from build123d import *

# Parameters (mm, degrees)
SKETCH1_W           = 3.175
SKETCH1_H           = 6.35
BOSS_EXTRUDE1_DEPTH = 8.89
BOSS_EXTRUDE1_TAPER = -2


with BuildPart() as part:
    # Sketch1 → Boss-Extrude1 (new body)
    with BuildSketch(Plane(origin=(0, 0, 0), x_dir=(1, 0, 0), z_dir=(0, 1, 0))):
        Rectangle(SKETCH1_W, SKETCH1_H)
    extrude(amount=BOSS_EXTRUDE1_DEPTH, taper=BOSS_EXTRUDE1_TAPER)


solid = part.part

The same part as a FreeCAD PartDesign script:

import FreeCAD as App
import Part
import Sketcher
from FreeCAD import Vector
Q = App.Units.Quantity

doc = App.newDocument("Part")
body = doc.addObject("PartDesign::Body", "Body")

# Sketch on XZ plane
sketch1 = doc.addObject("Sketcher::SketchObject", "Sketch")
body.addObject(sketch1)
sketch1.AttachmentSupport = (doc.XZ_Plane, [""])
sketch1.MapMode = "FlatFace"
sketch1.addGeometry(Part.LineSegment(Vector(-1.6, -3.2, 0), Vector(-1.6, 3.2, 0)), False)
sketch1.addGeometry(Part.LineSegment(Vector(-1.6, 3.2, 0), Vector(1.6, 3.2, 0)), False)
sketch1.addGeometry(Part.LineSegment(Vector(1.6, 3.2, 0), Vector(1.6, -3.2, 0)), False)
sketch1.addGeometry(Part.LineSegment(Vector(1.6, -3.2, 0), Vector(-1.6, -3.2, 0)), False)
sketch1.addConstraint(Sketcher.Constraint("Coincident", 0, 2, 1, 1))
sketch1.addConstraint(Sketcher.Constraint("Coincident", 1, 2, 2, 1))
sketch1.addConstraint(Sketcher.Constraint("Coincident", 2, 2, 3, 1))
sketch1.addConstraint(Sketcher.Constraint("Coincident", 3, 2, 0, 1))
sketch1.addConstraint(Sketcher.Constraint("Vertical", 0))
sketch1.addConstraint(Sketcher.Constraint("Horizontal", 1))
sketch1.addConstraint(Sketcher.Constraint("Vertical", 2))
sketch1.addConstraint(Sketcher.Constraint("Horizontal", 3))
sketch1.addConstraint(Sketcher.Constraint("Symmetric", 0, 2, 2, 2, -1, 1))
sketch1.addConstraint(Sketcher.Constraint("DistanceY", 0, 1, 0, 2, Q("0.25 in")))
sketch1.addConstraint(Sketcher.Constraint("DistanceX", 1, 1, 1, 2, Q("0.125 in")))
pad1 = doc.addObject("PartDesign::Pad", "Pad")
body.addObject(pad1)
pad1.Profile = sketch1
pad1.Length = Q("0.35 in")
pad1.Reversed = True
pad1.TaperAngle = 2

doc.recompute()
